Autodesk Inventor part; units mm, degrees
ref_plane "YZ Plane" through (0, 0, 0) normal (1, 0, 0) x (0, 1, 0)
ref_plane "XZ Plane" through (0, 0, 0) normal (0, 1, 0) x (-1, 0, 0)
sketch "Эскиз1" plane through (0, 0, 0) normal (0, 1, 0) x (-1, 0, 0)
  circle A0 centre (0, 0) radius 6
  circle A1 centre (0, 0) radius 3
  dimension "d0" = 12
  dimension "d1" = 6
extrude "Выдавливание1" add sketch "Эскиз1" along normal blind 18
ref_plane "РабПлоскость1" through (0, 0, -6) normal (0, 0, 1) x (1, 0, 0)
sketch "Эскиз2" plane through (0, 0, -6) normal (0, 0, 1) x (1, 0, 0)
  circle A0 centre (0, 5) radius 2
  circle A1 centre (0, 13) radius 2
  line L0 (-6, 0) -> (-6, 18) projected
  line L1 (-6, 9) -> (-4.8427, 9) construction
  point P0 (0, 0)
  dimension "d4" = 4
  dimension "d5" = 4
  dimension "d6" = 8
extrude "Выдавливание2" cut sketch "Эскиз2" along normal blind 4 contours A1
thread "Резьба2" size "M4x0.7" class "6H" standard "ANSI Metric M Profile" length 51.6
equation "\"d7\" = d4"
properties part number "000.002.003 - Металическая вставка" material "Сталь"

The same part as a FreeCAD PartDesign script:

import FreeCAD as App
import Part
import Sketcher

doc = App.newDocument("Part")
params = doc.addObject("Spreadsheet::Sheet", "Params")
for row, (alias, value) in enumerate([
    ("sketch1_diameter", "12 mm"),
    ("sketch1_diameter2", "6 mm"),
    ("pad1_length", "18 mm"),
    ("sketch2_diameter", "4 mm"),
    ("pocket1_length", "4 mm"),
], start=1):
    params.set(f"A{row}", alias)
    params.set(f"B{row}", "=" + value)
    params.setAlias(f"B{row}", alias)

body = doc.addObject("PartDesign::Body", "Body")

sketch1 = body.newObject("Sketcher::SketchObject", "Sketch")
sketch1.AttachmentSupport = (doc.getObject("XZ_Plane"), [""])
sketch1.MapMode = "FlatFace"
sketch1.addGeometry([
    Part.Circle(App.Vector(0, 0, 0), App.Vector(0, 0, 1), 6),
    Part.Circle(App.Vector(0, 0, 0), App.Vector(0, 0, 1), 3),
], False)
sketch1.addConstraint([
    Sketcher.Constraint("Coincident", 0, 3, -1, 1),
    Sketcher.Constraint("Coincident", 1, 3, -1, 1),
    Sketcher.Constraint("Diameter", 0, 12.0),
    Sketcher.Constraint("Diameter", 1, 6.0),
])
sketch1.setExpression("Constraints[2]", "Params.sketch1_diameter")
sketch1.setExpression("Constraints[3]", "Params.sketch1_diameter2")
pad1 = body.newObject("PartDesign::Pad", "Pad")
pad1.Profile = sketch1
pad1.setExpression("Length", "Params.pad1_length")
pad1.Reversed = True

sketch2 = body.newObject("Sketcher::SketchObject", "Sketch001")
sketch2.AttachmentSupport = (doc.getObject("XY_Plane"), [""])
sketch2.MapMode = "FlatFace"
sketch2.AttachmentOffset = App.Placement(App.Vector(0, 0, -6), App.Rotation())
sketch2.addGeometry(Part.Circle(App.Vector(0, 13, 0), App.Vector(0, 0, 1), 2), False)
sketch2.addConstraint([
    Sketcher.Constraint("PointOnObject", 0, 3, -2),
    Sketcher.Constraint("Diameter", 0, 4.0),
    Sketcher.Constraint("DistanceY", -1, 1, 0, 3, 13.0),
])
sketch2.setExpression("Constraints[1]", "Params.sketch2_diameter")
pocket1 = body.newObject("PartDesign::Pocket", "Pocket")
pocket1.Profile = sketch2
pocket1.setExpression("Length", "Params.pocket1_length")
pocket1.Reversed = True

doc.recompute()
